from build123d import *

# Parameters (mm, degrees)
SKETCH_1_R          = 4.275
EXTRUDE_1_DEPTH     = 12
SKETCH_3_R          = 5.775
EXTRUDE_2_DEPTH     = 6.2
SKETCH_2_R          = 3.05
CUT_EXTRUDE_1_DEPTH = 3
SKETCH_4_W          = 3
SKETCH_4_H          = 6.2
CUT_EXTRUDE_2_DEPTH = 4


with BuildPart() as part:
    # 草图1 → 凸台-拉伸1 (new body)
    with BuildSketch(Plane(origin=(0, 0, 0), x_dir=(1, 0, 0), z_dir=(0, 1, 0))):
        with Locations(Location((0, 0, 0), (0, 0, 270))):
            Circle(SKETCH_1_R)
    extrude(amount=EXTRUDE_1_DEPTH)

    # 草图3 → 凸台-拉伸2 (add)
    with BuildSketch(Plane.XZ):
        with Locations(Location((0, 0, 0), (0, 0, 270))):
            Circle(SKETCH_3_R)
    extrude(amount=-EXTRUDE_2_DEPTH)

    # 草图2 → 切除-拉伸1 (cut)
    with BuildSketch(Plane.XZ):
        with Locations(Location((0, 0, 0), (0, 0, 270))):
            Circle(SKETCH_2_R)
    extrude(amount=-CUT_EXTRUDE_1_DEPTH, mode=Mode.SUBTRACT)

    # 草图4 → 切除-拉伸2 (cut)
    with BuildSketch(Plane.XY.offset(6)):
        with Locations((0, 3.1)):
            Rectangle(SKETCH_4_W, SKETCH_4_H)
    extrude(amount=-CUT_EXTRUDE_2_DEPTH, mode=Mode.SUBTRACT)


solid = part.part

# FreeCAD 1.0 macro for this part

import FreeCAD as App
import Part
import Sketcher

V = App.Vector
Q = App.Units.Quantity


def add_polygon(sketch, points):
    """Adds a closed chain of lines whose ends are joined by coincident constraints."""
    first, n = sketch.GeometryCount, len(points)
    for a, b in zip(points, points[1:] + points[:1]):
        sketch.addGeometry(Part.LineSegment(App.Vector(*a, 0), App.Vector(*b, 0)), False)
    for i in range(n):
        sketch.addConstraint(Sketcher.Constraint("Coincident", first + i, 2, first + (i + 1) % n, 1))

doc = App.newDocument("Part")
body = doc.addObject("PartDesign::Body", "Body")

sketch1 = body.newObject("Sketcher::SketchObject", "Sketch")
sketch1.AttachmentSupport = (doc.getObject("XZ_Plane"), [""])
sketch1.MapMode = "FlatFace"
sketch1.addGeometry(Part.Circle(V(0, 0, 0), V(0, 0, 1), 4.3), False)
sketch1.addConstraint([
    Sketcher.Constraint("Coincident", 0, 3, -1, 1),
    Sketcher.Constraint("Diameter", 0, Q("8.55 mm")),
])
pad1 = body.newObject("PartDesign::Pad", "Pad")
pad1.Profile = sketch1
pad1.Length = 12
pad1.Reversed = True

sketch2 = body.newObject("Sketcher::SketchObject", "Sketch001")
sketch2.AttachmentSupport = (doc.getObject("XZ_Plane"), [""])
sketch2.MapMode = "FlatFace"
sketch2.addGeometry(Part.Circle(V(0, 0, 0), V(0, 0, 1), 6), False)
sketch2.addConstraint([
    Sketcher.Constraint("Coincident", 0, 3, -1, 1),
    Sketcher.Constraint("Diameter", 0, Q("11.55 mm")),
])
pad2 = body.newObject("PartDesign::Pad", "Pad001")
pad2.Profile = sketch2
pad2.Length = 6.2
pad2.Reversed = True

sketch3 = body.newObject("Sketcher::SketchObject", "Sketch002")
sketch3.AttachmentSupport = (doc.getObject("XZ_Plane"), [""])
sketch3.MapMode = "FlatFace"
sketch3.addGeometry(Part.Circle(V(0, 0, 0), V(0, 0, 1), 3), False)
sketch3.addConstraint([
    Sketcher.Constraint("Coincident", 0, 3, -1, 1),
    Sketcher.Constraint("Diameter", 0, Q("6.1 mm")),
])
pocket1 = body.newObject("PartDesign::Pocket", "Pocket")
pocket1.Profile = sketch3
pocket1.Length = 3

sketch4 = body.newObject("Sketcher::SketchObject", "Sketch003")
sketch4.AttachmentSupport = (doc.getObject("XY_Plane"), [""])
sketch4.MapMode = "FlatFace"
sketch4.AttachmentOffset = App.Placement(V(0, 0, 6), App.Rotation())
add_polygon(sketch4, [(-1.5, 6.2), (-1.5, 0), (1.5, 0), (1.5, 6.2)])
sketch4.addConstraint([
    Sketcher.Constraint("Vertical", 0),
    Sketcher.Constraint("Horizontal", 1),
    Sketcher.Constraint("Vertical", 2),
    Sketcher.Constraint("Horizontal", 3),
    Sketcher.Constraint("Symmetric", 0, 2, 1, 2, -1, 1),
    Sketcher.Constraint("DistanceX", 1, 1, 1, 2, Q("3 mm")),
    Sketcher.Constraint("DistanceY", 0, 2, 0, 1, Q("6.2 mm")),
])
pocket2 = body.newObject("PartDesign::Pocket", "Pocket001")
pocket2.Profile = sketch4
pocket2.Length = 4

doc.recompute()
